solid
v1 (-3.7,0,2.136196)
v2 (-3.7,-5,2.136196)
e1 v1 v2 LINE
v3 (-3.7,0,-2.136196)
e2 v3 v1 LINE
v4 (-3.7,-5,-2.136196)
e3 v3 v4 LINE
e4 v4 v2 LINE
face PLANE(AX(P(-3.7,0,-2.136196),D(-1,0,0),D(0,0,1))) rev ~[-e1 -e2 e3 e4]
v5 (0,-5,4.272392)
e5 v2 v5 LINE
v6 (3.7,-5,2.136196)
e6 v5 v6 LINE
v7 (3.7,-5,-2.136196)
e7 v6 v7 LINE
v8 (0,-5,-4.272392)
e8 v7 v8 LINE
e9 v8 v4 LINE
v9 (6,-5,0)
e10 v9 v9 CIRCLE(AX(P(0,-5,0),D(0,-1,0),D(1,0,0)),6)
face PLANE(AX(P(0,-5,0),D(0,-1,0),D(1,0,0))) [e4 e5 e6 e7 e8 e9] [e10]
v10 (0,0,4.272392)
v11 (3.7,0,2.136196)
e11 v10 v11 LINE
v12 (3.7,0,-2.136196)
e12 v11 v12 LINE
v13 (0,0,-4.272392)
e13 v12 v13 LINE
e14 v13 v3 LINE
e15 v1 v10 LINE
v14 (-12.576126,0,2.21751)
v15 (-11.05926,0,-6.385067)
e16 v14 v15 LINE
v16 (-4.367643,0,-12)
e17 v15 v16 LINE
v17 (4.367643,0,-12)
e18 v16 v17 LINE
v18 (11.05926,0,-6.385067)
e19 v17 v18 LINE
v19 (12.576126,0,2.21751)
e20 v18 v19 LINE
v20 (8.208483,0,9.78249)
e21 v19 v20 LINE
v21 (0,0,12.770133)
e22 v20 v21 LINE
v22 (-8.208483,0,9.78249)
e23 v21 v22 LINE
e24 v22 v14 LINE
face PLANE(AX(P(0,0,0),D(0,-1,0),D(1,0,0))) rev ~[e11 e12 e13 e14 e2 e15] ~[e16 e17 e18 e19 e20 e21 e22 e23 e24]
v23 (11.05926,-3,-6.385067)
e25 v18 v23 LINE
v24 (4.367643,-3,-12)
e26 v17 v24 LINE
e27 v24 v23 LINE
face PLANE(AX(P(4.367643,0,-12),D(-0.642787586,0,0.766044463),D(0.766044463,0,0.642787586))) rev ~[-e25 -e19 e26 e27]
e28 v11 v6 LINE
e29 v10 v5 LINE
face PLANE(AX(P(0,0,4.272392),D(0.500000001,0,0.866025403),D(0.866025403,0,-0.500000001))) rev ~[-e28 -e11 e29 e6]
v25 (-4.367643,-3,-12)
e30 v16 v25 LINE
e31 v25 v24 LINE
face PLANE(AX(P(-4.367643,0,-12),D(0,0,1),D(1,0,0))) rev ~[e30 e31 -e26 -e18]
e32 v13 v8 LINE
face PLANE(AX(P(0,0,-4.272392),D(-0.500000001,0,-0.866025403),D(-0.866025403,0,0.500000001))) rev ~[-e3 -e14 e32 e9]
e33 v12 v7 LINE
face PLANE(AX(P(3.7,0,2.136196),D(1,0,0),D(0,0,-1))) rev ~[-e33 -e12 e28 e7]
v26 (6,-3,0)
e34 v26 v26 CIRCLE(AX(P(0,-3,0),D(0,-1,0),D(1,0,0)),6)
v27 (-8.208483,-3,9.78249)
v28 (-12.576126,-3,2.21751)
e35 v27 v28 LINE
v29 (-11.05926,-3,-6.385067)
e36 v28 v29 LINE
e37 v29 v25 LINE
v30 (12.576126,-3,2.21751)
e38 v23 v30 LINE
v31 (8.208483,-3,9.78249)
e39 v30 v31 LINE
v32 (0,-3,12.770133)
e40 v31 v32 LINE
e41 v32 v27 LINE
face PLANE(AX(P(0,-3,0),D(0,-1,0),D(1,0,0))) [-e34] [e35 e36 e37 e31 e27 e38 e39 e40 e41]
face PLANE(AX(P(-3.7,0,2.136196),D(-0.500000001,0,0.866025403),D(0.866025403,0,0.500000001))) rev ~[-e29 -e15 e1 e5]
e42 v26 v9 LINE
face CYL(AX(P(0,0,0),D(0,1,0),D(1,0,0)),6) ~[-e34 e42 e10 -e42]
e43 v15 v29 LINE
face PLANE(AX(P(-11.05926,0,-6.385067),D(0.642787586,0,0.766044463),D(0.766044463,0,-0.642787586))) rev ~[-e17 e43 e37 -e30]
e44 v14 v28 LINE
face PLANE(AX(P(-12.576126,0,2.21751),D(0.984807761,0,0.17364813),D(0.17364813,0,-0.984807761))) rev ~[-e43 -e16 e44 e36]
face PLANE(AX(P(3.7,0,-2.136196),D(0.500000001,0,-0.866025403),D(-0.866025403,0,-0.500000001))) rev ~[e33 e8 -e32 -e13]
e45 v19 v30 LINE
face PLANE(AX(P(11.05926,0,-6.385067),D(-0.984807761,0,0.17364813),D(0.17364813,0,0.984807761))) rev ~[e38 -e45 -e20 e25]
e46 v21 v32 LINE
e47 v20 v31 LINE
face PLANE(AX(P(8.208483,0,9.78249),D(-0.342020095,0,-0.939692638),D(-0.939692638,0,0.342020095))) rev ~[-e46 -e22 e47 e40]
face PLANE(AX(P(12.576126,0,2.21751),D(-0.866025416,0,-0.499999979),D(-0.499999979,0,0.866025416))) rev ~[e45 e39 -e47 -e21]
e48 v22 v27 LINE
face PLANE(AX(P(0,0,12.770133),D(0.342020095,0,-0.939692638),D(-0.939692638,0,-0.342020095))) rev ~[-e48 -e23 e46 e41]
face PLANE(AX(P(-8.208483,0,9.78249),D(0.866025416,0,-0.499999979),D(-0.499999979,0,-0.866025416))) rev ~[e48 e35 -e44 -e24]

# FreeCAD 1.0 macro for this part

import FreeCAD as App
import Part
import Sketcher
from FreeCAD import Vector
Q = App.Units.Quantity


def add_polygon(sketch, points):
    """Adds a closed chain of lines whose ends are joined by coincident constraints."""
    first, n = sketch.GeometryCount, len(points)
    for a, b in zip(points, points[1:] + points[:1]):
        sketch.addGeometry(Part.LineSegment(App.Vector(*a, 0), App.Vector(*b, 0)), False)
    for i in range(n):
        sketch.addConstraint(Sketcher.Constraint("Coincident", first + i, 2, first + (i + 1) % n, 1))

doc = App.newDocument("Part")
body = doc.addObject("PartDesign::Body", "Body")

# Sketch on XZ plane
sketch1 = body.newObject("Sketcher::SketchObject", "Sketch")
sketch1.AttachmentSupport = (doc.getObject("XZ_Plane"), [""])
sketch1.MapMode = "FlatFace"
add_polygon(sketch1, [(-4, -12), (4, -12), (11, -6), (13, 2), (8, 10), (0, 13), (-8, 10), (-13, 2), (-11, -6)])  # lines 0-8
sketch1.addGeometry(Part.Circle(Vector(0, 0, 0), Vector(0, 0, 1), 6), False)  # 9
sketch1.addConstraint([
    Sketcher.Constraint("Horizontal", 0),
    Sketcher.Constraint("Coincident", 9, 3, -1, 1),
    Sketcher.Constraint("Symmetric", 3, 2, 5, 2, -2),
    Sketcher.Constraint("Symmetric", 2, 2, 6, 2, -2),
    Sketcher.Constraint("Symmetric", 1, 2, 7, 2, -2),
    Sketcher.Constraint("PointOnObject", 4, 2, -2),
    Sketcher.Constraint("Equal", 1, 2),
    Sketcher.Constraint("Equal", 2, 3),
    Sketcher.Constraint("Equal", 3, 4),
    Sketcher.Constraint("Equal", 7, 8),
    Sketcher.Constraint("Diameter", 9, Q("12 mm")),
    Sketcher.Constraint("Angle", 1, Q("39.999998 deg")),
    Sketcher.Constraint("Angle", 2, Q("80.000003 deg")),
    Sketcher.Constraint("Angle", 3, Q("119.999999 deg")),
    Sketcher.Constraint("Angle", 4, Q("160.000003 deg")),
    Sketcher.Constraint("DistanceY", 0, 2, -1, 1, Q("12 mm")),
    Sketcher.Constraint("DistanceY", 1, 2, 4, 2, Q("19.1552 mm")),
])
pad1 = body.newObject("PartDesign::Pad", "Pad")
pad1.Profile = sketch1
pad1.Length = 3

# Sketch on XZ plane
sketch2 = body.newObject("Sketcher::SketchObject", "Sketch001")
sketch2.AttachmentSupport = (doc.getObject("XZ_Plane"), [""])
sketch2.MapMode = "FlatFace"
sketch2.addGeometry(Part.Circle(Vector(0, 0, 0), Vector(0, 0, 1), 6), False)  # 0
add_polygon(sketch2, [(3.7, -2.1), (0, -4.3), (-3.7, -2.1), (-3.7, 2.1), (0, 4.3), (3.7, 2.1)])  # lines 1-6
sketch2.addConstraint([
    Sketcher.Constraint("Vertical", 3),
    Sketcher.Constraint("Vertical", 6),
    Sketcher.Constraint("Coincident", 0, 3, -1, 1),
    Sketcher.Constraint("Symmetric", 1, 2, 4, 2, -1, 1),
    Sketcher.Constraint("Symmetric", 2, 2, 5, 2, -1, 1),
    Sketcher.Constraint("PointOnObject", 1, 2, -2),
    Sketcher.Constraint("Parallel", 1, 4),
    Sketcher.Constraint("Horizontal", 3, 2, 5, 2),
    Sketcher.Constraint("Diameter", 0, Q("12 mm")),
    Sketcher.Constraint("Angle", 1, Q("-150 deg")),
    Sketcher.Constraint("DistanceX", 2, 2, -1, 1, Q("3.7 mm")),
    Sketcher.Constraint("DistanceY", 3, 1, 3, 2, Q("4.272392 mm")),
])
pad2 = body.newObject("PartDesign::Pad", "Pad001")
pad2.Profile = sketch2
pad2.Length = 5

doc.recompute()
